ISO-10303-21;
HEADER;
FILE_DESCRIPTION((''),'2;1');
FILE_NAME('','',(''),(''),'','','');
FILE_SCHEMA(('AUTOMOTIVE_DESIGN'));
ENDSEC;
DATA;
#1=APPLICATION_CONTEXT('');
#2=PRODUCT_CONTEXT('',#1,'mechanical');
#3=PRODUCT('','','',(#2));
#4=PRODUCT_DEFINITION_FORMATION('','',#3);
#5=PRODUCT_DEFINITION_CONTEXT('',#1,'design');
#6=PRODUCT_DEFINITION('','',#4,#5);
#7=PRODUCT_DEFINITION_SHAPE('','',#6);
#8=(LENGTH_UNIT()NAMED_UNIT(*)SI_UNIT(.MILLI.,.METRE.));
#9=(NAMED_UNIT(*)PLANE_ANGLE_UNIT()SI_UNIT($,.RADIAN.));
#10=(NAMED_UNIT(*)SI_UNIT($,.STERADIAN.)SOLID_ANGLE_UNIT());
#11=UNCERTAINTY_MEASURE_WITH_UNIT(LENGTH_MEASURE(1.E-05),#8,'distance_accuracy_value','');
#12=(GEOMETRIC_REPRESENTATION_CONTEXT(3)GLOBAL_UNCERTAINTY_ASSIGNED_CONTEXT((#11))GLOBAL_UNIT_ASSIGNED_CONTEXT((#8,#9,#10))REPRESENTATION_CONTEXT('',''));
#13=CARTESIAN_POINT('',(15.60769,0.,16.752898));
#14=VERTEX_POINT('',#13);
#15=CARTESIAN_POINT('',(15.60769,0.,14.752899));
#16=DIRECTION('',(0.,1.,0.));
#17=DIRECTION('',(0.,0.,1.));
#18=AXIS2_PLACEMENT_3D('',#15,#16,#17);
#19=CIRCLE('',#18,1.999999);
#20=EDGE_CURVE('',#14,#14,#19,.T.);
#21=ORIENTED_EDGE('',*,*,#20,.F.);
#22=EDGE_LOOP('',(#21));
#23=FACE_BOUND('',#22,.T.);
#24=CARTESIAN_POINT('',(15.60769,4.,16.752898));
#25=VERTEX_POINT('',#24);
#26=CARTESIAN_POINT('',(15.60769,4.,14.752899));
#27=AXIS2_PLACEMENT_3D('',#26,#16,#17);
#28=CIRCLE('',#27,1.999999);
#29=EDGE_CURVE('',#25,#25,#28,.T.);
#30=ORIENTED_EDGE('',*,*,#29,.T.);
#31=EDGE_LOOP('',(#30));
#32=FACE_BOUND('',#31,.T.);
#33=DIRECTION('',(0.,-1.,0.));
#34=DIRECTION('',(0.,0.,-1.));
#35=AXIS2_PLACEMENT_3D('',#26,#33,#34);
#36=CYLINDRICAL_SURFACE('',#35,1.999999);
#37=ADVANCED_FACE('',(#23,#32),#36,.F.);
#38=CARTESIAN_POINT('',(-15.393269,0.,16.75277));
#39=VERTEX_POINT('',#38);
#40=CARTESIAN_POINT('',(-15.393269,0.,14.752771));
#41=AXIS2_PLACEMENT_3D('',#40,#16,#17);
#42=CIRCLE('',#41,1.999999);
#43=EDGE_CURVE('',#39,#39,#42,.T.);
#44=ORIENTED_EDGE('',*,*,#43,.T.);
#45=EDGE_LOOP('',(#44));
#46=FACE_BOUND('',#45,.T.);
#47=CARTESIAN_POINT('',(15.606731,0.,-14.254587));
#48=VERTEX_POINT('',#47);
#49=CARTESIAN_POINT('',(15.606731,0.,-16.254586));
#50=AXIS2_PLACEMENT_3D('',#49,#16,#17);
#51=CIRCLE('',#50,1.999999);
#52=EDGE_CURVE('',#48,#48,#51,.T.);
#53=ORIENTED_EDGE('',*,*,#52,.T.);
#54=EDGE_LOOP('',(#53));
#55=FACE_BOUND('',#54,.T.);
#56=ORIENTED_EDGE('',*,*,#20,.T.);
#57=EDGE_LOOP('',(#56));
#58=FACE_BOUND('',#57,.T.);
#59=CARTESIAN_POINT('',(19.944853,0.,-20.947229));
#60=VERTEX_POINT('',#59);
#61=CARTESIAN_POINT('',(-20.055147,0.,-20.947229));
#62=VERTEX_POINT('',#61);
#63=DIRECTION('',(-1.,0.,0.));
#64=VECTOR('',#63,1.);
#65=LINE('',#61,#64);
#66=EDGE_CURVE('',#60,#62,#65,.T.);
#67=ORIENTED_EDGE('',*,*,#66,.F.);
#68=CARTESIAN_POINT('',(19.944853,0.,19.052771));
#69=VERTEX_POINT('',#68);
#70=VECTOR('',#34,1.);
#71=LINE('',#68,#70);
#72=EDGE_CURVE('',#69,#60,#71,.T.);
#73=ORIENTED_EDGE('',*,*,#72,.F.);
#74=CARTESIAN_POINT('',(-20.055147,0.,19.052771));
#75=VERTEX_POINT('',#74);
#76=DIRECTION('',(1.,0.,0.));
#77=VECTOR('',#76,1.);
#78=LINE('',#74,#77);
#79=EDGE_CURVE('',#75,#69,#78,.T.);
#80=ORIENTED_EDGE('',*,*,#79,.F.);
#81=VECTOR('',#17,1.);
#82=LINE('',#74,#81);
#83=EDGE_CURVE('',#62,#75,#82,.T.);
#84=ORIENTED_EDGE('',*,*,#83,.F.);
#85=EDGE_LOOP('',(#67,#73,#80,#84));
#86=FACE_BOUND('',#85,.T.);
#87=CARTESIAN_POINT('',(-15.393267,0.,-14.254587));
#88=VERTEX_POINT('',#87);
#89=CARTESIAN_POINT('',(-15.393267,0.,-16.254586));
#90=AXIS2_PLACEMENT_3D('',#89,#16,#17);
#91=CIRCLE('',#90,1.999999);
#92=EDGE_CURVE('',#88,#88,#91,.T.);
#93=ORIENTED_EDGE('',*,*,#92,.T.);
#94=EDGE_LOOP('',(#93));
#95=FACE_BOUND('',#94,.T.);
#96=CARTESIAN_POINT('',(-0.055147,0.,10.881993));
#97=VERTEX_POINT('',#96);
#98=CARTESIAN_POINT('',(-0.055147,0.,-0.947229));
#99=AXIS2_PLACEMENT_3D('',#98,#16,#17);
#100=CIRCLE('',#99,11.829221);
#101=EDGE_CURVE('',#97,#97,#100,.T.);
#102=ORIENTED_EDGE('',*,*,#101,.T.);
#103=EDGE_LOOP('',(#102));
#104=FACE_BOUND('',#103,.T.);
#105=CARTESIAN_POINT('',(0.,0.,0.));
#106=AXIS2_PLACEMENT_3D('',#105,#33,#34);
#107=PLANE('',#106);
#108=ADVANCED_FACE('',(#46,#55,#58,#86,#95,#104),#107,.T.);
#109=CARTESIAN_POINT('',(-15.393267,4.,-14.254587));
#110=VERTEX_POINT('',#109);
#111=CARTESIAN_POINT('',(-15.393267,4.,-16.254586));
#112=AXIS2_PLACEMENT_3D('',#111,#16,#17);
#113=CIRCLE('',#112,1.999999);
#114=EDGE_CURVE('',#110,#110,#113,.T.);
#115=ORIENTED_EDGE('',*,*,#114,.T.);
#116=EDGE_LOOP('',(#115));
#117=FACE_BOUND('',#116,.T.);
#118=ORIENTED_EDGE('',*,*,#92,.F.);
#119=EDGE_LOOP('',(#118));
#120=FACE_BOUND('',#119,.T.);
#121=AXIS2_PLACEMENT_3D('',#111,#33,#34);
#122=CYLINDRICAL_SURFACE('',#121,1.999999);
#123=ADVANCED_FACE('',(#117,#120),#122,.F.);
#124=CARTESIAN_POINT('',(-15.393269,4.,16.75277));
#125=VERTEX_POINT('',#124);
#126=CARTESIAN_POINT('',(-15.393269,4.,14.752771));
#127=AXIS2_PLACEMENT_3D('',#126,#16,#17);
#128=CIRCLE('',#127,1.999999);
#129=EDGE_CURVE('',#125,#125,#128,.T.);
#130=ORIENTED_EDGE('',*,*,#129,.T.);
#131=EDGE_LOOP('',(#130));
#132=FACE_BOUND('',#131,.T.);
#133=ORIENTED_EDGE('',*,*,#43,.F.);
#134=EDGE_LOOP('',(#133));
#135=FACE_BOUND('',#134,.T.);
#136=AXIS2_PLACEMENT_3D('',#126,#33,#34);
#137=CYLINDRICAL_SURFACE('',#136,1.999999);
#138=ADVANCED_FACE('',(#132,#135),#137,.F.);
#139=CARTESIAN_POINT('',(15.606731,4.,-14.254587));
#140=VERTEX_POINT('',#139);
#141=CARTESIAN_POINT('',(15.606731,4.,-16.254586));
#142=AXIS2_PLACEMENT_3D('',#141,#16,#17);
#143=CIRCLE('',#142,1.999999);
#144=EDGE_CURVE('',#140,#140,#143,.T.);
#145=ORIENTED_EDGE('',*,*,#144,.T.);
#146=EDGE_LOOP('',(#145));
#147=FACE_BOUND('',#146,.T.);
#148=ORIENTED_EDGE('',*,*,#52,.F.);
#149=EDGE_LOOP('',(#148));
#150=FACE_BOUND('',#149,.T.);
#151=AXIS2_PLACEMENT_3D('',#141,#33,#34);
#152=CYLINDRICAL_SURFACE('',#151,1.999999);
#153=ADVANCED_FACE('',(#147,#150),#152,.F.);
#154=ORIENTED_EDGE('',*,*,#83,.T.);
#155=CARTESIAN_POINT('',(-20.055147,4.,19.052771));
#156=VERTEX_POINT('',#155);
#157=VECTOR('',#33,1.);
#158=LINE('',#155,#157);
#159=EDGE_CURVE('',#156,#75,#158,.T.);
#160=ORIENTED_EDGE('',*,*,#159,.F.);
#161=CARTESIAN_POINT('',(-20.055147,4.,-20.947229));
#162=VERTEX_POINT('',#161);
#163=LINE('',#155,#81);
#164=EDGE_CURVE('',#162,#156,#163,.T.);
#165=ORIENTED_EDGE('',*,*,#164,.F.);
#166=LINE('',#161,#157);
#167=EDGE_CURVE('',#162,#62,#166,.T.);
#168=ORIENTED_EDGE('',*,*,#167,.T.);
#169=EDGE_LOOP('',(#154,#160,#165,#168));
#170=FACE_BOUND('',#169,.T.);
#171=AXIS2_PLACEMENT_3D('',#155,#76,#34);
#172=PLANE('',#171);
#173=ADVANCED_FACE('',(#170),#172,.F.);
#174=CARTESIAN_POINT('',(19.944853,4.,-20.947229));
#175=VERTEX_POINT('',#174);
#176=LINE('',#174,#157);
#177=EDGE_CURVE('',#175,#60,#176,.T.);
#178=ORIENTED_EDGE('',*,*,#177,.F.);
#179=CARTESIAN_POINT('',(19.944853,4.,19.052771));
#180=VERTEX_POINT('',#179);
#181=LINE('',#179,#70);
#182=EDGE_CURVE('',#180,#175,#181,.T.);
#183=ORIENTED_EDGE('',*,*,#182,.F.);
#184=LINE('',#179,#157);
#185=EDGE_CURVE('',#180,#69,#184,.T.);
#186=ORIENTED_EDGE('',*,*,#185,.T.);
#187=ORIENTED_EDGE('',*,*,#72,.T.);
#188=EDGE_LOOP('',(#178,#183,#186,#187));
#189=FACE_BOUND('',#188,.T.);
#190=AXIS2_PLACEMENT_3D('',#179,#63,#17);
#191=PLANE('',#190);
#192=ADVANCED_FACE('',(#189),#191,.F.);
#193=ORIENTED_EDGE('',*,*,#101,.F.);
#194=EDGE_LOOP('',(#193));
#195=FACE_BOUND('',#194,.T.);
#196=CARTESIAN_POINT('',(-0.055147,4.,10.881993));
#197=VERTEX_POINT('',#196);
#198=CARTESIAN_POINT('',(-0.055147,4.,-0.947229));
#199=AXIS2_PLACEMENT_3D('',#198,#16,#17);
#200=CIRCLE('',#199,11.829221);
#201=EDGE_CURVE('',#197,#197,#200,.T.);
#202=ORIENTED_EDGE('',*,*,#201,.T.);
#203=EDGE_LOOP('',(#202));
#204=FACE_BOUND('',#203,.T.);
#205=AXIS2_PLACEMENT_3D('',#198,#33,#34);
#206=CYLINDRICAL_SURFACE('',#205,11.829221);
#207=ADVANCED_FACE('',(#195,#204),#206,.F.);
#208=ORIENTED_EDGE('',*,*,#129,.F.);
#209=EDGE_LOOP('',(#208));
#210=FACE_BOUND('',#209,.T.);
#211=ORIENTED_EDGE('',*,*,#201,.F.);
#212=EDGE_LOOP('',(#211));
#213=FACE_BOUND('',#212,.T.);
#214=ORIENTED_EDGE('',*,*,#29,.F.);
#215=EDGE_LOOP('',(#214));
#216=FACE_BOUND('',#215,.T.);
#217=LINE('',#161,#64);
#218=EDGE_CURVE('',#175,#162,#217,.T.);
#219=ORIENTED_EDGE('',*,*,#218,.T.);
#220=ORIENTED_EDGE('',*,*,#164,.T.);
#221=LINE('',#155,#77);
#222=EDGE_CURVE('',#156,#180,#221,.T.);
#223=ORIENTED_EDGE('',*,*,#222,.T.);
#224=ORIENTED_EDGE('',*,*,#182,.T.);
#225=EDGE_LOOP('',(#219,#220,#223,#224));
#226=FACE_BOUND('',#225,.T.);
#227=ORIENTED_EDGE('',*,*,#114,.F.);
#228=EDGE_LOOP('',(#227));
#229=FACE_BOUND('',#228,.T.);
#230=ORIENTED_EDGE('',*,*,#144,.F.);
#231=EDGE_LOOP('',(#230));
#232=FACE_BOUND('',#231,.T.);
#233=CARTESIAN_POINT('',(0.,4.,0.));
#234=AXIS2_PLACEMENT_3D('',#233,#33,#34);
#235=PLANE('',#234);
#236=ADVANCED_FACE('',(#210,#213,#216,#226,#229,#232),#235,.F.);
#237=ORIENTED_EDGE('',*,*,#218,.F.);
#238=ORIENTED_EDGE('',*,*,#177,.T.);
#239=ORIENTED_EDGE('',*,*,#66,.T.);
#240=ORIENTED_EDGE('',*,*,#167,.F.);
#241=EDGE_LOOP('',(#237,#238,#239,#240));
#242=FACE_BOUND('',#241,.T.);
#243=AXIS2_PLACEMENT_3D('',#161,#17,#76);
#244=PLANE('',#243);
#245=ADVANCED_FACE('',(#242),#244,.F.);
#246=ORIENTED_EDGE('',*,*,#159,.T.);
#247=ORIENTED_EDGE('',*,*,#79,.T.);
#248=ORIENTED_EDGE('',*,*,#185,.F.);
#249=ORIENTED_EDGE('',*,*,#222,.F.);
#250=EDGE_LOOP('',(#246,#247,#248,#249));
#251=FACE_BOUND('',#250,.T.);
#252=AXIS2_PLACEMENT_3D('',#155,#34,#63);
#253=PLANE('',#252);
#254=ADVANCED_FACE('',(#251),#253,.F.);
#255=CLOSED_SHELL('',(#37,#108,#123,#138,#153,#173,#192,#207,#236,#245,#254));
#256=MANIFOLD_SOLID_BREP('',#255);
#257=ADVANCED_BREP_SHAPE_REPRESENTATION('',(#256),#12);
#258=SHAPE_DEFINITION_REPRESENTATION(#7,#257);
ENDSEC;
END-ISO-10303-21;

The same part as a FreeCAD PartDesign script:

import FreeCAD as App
import Part
import Sketcher
from FreeCAD import Vector


def add_polygon(sketch, points):
    """Adds a closed chain of lines whose ends are joined by coincident constraints."""
    first, n = sketch.GeometryCount, len(points)
    for a, b in zip(points, points[1:] + points[:1]):
        sketch.addGeometry(Part.LineSegment(App.Vector(*a, 0), App.Vector(*b, 0)), False)
    for i in range(n):
        sketch.addConstraint(Sketcher.Constraint("Coincident", first + i, 2, first + (i + 1) % n, 1))

doc = App.newDocument("Part")
body = doc.addObject("PartDesign::Body", "Body")

# Sketch on XZ plane
sketch1 = body.newObject("Sketcher::SketchObject", "Sketch")
sketch1.AttachmentSupport = (doc.getObject("XZ_Plane"), [""])
sketch1.MapMode = "FlatFace"
add_polygon(sketch1, [(-20.1, -20.9), (-20.1, 19.1), (19.9, 19.1), (19.9, -20.9)])  # lines 0-3
sketch1.addGeometry(Part.Circle(Vector(-15.4, 14.8, 0), Vector(0, 0, 1), 2), False)  # 4
sketch1.addGeometry(Part.Circle(Vector(15.6, 14.8, 0), Vector(0, 0, 1), 2), False)  # 5
sketch1.addGeometry(Part.Circle(Vector(-0.1, -0.9, 0), Vector(0, 0, 1), 11.8), False)  # 6
sketch1.addGeometry(Part.Circle(Vector(-15.4, -16.3, 0), Vector(0, 0, 1), 2), False)  # 7
sketch1.addGeometry(Part.Circle(Vector(15.6, -16.3, 0), Vector(0, 0, 1), 2), False)  # 8
sketch1.addConstraint(Sketcher.Constraint("Vertical", 0))
sketch1.addConstraint(Sketcher.Constraint("Horizontal", 1))
sketch1.addConstraint(Sketcher.Constraint("Vertical", 2))
sketch1.addConstraint(Sketcher.Constraint("Horizontal", 3))
sketch1.addConstraint(Sketcher.Constraint("Equal", 4, 5))
sketch1.addConstraint(Sketcher.Constraint("Equal", 5, 7))
sketch1.addConstraint(Sketcher.Constraint("Equal", 7, 8))
sketch1.addConstraint(Sketcher.Constraint("Horizontal", 7, 3, 8, 3))
sketch1.addConstraint(Sketcher.Constraint("Vertical", 4, 3, 7, 3))
sketch1.addConstraint(Sketcher.Constraint("Equal", 3, 0))
sketch1.addConstraint(Sketcher.Constraint("Diameter", 4, 3.999998))
sketch1.addConstraint(Sketcher.Constraint("DistanceX", 1, 1, 1, 2, 40.0))
sketch1.addConstraint(Sketcher.Constraint("DistanceX", 7, 3, 8, 3, 30.999998))
sketch1.addConstraint(Sketcher.Constraint("DistanceX", 0, 2, 6, 3, 20.0))
sketch1.addConstraint(Sketcher.Constraint("DistanceY", 6, 3, 0, 2, 20.0))
sketch1.addConstraint(Sketcher.Constraint("DistanceY", 6, 3, 4, 3, 15.7))
sketch1.addConstraint(Sketcher.Constraint("Diameter", 6, 23.658443))
sketch1.addConstraint(Sketcher.Constraint("DistanceY", -1, 1, 5, 3, 14.752899))
sketch1.addConstraint(Sketcher.Constraint("DistanceX", 4, 3, -1, 1, 15.393269))
sketch1.addConstraint(Sketcher.Constraint("DistanceY", -1, 1, 4, 3, 14.752771))
sketch1.addConstraint(Sketcher.Constraint("DistanceX", -1, 1, 5, 3, 15.60769))
sketch1.addConstraint(Sketcher.Constraint("DistanceX", 4, 3, 6, 3, 15.338122))
sketch1.addConstraint(Sketcher.Constraint("DistanceY", 7, 3, -1, 1, 16.254586))
pad1 = body.newObject("PartDesign::Pad", "Pad")
pad1.Profile = sketch1
pad1.Length = 4
pad1.Reversed = True

doc.recompute()
